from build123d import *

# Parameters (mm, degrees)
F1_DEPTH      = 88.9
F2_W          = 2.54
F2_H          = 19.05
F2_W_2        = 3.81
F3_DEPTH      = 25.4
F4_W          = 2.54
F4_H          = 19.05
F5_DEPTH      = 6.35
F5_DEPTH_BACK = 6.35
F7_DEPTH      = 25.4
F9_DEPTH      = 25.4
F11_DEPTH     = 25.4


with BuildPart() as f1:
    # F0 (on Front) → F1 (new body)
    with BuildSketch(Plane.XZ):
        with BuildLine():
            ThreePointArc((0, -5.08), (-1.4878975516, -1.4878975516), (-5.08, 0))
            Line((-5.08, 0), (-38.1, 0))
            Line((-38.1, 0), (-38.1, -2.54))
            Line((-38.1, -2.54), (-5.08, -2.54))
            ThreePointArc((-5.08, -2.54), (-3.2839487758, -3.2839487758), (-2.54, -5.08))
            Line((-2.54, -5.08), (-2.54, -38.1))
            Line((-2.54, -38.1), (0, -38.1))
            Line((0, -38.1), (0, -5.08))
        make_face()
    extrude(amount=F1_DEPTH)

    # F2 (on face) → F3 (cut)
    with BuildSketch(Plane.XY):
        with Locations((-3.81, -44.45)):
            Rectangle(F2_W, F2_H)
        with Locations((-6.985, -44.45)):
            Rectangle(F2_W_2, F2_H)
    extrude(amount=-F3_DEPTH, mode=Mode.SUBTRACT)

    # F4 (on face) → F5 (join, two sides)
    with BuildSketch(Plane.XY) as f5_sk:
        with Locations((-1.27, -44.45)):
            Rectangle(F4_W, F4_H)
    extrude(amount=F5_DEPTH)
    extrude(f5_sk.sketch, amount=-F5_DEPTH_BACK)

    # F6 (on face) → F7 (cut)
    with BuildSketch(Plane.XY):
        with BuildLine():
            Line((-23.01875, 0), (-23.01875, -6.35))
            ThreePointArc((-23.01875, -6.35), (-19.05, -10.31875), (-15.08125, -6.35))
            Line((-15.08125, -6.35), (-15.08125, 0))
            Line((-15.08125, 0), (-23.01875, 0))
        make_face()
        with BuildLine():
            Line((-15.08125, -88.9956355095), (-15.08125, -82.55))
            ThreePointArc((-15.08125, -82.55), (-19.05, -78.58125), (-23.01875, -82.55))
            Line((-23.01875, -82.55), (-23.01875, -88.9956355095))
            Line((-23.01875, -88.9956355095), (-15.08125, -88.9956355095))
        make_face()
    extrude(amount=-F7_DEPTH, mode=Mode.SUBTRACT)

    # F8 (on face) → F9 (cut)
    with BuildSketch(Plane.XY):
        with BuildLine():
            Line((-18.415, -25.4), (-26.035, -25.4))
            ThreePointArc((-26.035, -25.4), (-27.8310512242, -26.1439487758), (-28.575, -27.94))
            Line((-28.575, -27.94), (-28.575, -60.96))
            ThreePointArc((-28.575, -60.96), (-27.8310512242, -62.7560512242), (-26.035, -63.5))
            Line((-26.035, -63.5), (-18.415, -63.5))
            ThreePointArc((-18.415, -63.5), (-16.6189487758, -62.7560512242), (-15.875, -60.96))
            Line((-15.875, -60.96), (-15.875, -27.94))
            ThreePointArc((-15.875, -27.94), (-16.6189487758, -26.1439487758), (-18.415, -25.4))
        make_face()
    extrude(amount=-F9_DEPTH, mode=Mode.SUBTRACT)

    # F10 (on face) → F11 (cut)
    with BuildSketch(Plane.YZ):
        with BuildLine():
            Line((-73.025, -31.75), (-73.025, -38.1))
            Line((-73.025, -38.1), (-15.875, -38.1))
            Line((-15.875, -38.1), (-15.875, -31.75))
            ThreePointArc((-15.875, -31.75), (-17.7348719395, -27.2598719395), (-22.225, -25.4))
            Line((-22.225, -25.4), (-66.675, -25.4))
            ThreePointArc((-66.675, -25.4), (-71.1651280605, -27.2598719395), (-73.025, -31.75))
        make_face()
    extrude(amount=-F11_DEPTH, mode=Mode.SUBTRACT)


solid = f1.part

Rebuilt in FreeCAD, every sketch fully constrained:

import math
import FreeCAD as App
import Part
import Sketcher
from FreeCAD import Vector
Q = App.Units.Quantity


def add_polygon(sketch, points):
    """Adds a closed chain of lines whose ends are joined by coincident constraints."""
    first, n = sketch.GeometryCount, len(points)
    for a, b in zip(points, points[1:] + points[:1]):
        sketch.addGeometry(Part.LineSegment(App.Vector(*a, 0), App.Vector(*b, 0)), False)
    for i in range(n):
        sketch.addConstraint(Sketcher.Constraint("Coincident", first + i, 2, first + (i + 1) % n, 1))

doc = App.newDocument("Part")
params = doc.addObject("Spreadsheet::Sheet", "Params")
for row, (alias, value) in enumerate([
    ("sketch1_radius", "0.2 in"),
    ("sketch1_radius2", "0.1 in"),
    ("sketch1_width", "1.3 in"),
    ("pad1_length", "3.5 in"),
    ("sketch2_width", "0.25 in"),
    ("sketch2_height", "0.75 in"),
    ("pocket1_length", "1 in"),
    ("sketch3_width", "0.1 in"),
    ("sketch3_height", "0.75 in"),
    ("pad2_length", "0.25 in"),
    ("pad2_length2", "0.25 in"),
    ("sketch4_radius", "0.15625 in"),
    ("sketch4_height", "0.25 in"),
    ("pocket2_length", "1 in"),
    ("sketch5_radius", "0.1 in"),
    ("sketch5_width", "0.3 in"),
    ("sketch5_height", "1.3 in"),
    ("pocket3_length", "1 in"),
    ("sketch6_radius", "0.25 in"),
    ("sketch6_height", "0.25 in"),
    ("pocket4_length", "1 in"),
], start=1):
    params.set(f"A{row}", alias)
    params.set(f"B{row}", "=" + value)
    params.setAlias(f"B{row}", alias)

body = doc.addObject("PartDesign::Body", "Body")

# Sketch on XZ plane
sketch1 = doc.addObject("Sketcher::SketchObject", "Sketch")
body.addObject(sketch1)
sketch1.AttachmentSupport = (doc.XZ_Plane, [""])
sketch1.MapMode = "FlatFace"
sketch1.addGeometry(Part.ArcOfCircle(Part.Circle(Vector(-5.1, -5.1, 0), Vector(0, 0, 1), 5.1), math.radians(0), math.radians(90)), False)
sketch1.addGeometry(Part.LineSegment(Vector(-5.1, 0, 0), Vector(-38.1, 0, 0)), False)
sketch1.addGeometry(Part.LineSegment(Vector(-38.1, 0, 0), Vector(-38.1, -2.5, 0)), False)
sketch1.addGeometry(Part.LineSegment(Vector(-38.1, -2.5, 0), Vector(-5.1, -2.5, 0)), False)
sketch1.addGeometry(Part.ArcOfCircle(Part.Circle(Vector(-5.1, -5.1, 0), Vector(0, 0, 1), 2.5), math.radians(0), math.radians(90)), False)
sketch1.addGeometry(Part.LineSegment(Vector(-2.5, -5.1, 0), Vector(-2.5, -38.1, 0)), False)
sketch1.addGeometry(Part.LineSegment(Vector(-2.5, -38.1, 0), Vector(0, -38.1, 0)), False)
sketch1.addGeometry(Part.LineSegment(Vector(0, -38.1, 0), Vector(0, -5.1, 0)), False)
sketch1.addConstraint(Sketcher.Constraint("Tangent", 0, 2, 1, 1))
sketch1.addConstraint(Sketcher.Constraint("Coincident", 1, 2, 2, 1))
sketch1.addConstraint(Sketcher.Constraint("Coincident", 2, 2, 3, 1))
sketch1.addConstraint(Sketcher.Constraint("Tangent", 3, 2, 4, 2))
sketch1.addConstraint(Sketcher.Constraint("Tangent", 4, 1, 5, 1))
sketch1.addConstraint(Sketcher.Constraint("Coincident", 5, 2, 6, 1))
sketch1.addConstraint(Sketcher.Constraint("Coincident", 6, 2, 7, 1))
sketch1.addConstraint(Sketcher.Constraint("Tangent", 7, 2, 0, 1))
sketch1.addConstraint(Sketcher.Constraint("Horizontal", 1))
sketch1.addConstraint(Sketcher.Constraint("Vertical", 2))
sketch1.addConstraint(Sketcher.Constraint("Horizontal", 3))
sketch1.addConstraint(Sketcher.Constraint("Vertical", 5))
sketch1.addConstraint(Sketcher.Constraint("Horizontal", 6))
sketch1.addConstraint(Sketcher.Constraint("Vertical", 7))
sketch1.addConstraint(Sketcher.Constraint("Coincident", 4, 3, 0, 3))
sketch1.addConstraint(Sketcher.Constraint("PointOnObject", 0, 2, -1))
sketch1.addConstraint(Sketcher.Constraint("PointOnObject", 6, 2, -2))
sketch1.addConstraint(Sketcher.Constraint("Equal", 3, 5))
sketch1.addConstraint(Sketcher.Constraint("Radius", 0, Q("0.2 in")))
sketch1.addConstraint(Sketcher.Constraint("Radius", 4, Q("0.1 in")))
sketch1.addConstraint(Sketcher.Constraint("DistanceX", 1, 2, 1, 1, Q("1.3 in")))
sketch1.setExpression("Constraints[18]", "Params.sketch1_radius")
sketch1.setExpression("Constraints[19]", "Params.sketch1_radius2")
sketch1.setExpression("Constraints[20]", "Params.sketch1_width")
pad1 = doc.addObject("PartDesign::Pad", "Pad")
body.addObject(pad1)
pad1.Profile = sketch1
pad1.setExpression("Length", "Params.pad1_length")

# Sketch on XY plane
sketch2 = doc.addObject("Sketcher::SketchObject", "Sketch001")
body.addObject(sketch2)
sketch2.AttachmentSupport = (doc.XY_Plane, [""])
sketch2.MapMode = "FlatFace"
add_polygon(sketch2, [(-3, -54), (-3, -35), (-9, -35), (-9, -54)])  # lines 0-3
sketch2.addConstraint(Sketcher.Constraint("Vertical", 0))
sketch2.addConstraint(Sketcher.Constraint("Horizontal", 1))
sketch2.addConstraint(Sketcher.Constraint("Vertical", 2))
sketch2.addConstraint(Sketcher.Constraint("Horizontal", 3))
sketch2.addConstraint(Sketcher.Constraint("DistanceX", 1, 2, 1, 1, Q("0.25 in")))
sketch2.addConstraint(Sketcher.Constraint("DistanceY", 0, 1, 0, 2, Q("0.75 in")))
sketch2.addConstraint(Sketcher.Constraint("DistanceX", 0, 2, -1, 1, Q("0.1 in")))
sketch2.addConstraint(Sketcher.Constraint("DistanceY", 0, 2, -1, 1, Q("1.375 in")))
sketch2.setExpression("Constraints[8]", "Params.sketch2_width")
sketch2.setExpression("Constraints[9]", "Params.sketch2_height")
pocket1 = doc.addObject("PartDesign::Pocket", "Pocket")
body.addObject(pocket1)
pocket1.Profile = sketch2
pocket1.setExpression("Length", "Params.pocket1_length")

# Sketch on XY plane
sketch3 = doc.addObject("Sketcher::SketchObject", "Sketch002")
body.addObject(sketch3)
sketch3.AttachmentSupport = (doc.XY_Plane, [""])
sketch3.MapMode = "FlatFace"
add_polygon(sketch3, [(-2.5, -34.9), (-2.5, -54), (0, -54), (0, -34.9)])  # lines 0-3
sketch3.addConstraint(Sketcher.Constraint("Vertical", 0))
sketch3.addConstraint(Sketcher.Constraint("Horizontal", 1))
sketch3.addConstraint(Sketcher.Constraint("Vertical", 2))
sketch3.addConstraint(Sketcher.Constraint("Horizontal", 3))
sketch3.addConstraint(Sketcher.Constraint("PointOnObject", 1, 2, -2))
sketch3.addConstraint(Sketcher.Constraint("DistanceX", 1, 1, 1, 2, Q("0.1 in")))
sketch3.addConstraint(Sketcher.Constraint("DistanceY", 0, 2, 0, 1, Q("0.75 in")))
sketch3.addConstraint(Sketcher.Constraint("DistanceY", 0, 2, -1, 1, Q("2.125 in")))
sketch3.setExpression("Constraints[9]", "Params.sketch3_width")
sketch3.setExpression("Constraints[10]", "Params.sketch3_height")
pad2 = doc.addObject("PartDesign::Pad", "Pad001")
body.addObject(pad2)
pad2.Profile = sketch3
pad2.Type = "TwoLengths"
pad2.setExpression("Length", "Params.pad2_length")
pad2.setExpression("Length2", "Params.pad2_length2")

# Sketch on XY plane
sketch4 = doc.addObject("Sketcher::SketchObject", "Sketch003")
body.addObject(sketch4)
sketch4.AttachmentSupport = (doc.XY_Plane, [""])
sketch4.MapMode = "FlatFace"
sketch4.addGeometry(Part.LineSegment(Vector(-23, 0, 0), Vector(-23, -6.3, 0)), False)
sketch4.addGeometry(Part.ArcOfCircle(Part.Circle(Vector(-19.1, -6.3, 0), Vector(0, 0, 1), 4), math.radians(180), math.radians(360)), False)
sketch4.addGeometry(Part.LineSegment(Vector(-15.1, -6.3, 0), Vector(-15.1, 0, 0)), False)
sketch4.addGeometry(Part.LineSegment(Vector(-15.1, 0, 0), Vector(-23, 0, 0)), False)
sketch4.addGeometry(Part.LineSegment(Vector(-15.1, -89, 0), Vector(-15.1, -82.5, 0)), False)
sketch4.addGeometry(Part.ArcOfCircle(Part.Circle(Vector(-19.1, -82.5, 0), Vector(0, 0, 1), 4), math.radians(0), math.radians(180)), False)
sketch4.addGeometry(Part.LineSegment(Vector(-23, -82.5, 0), Vector(-23, -89, 0)), False)
sketch4.addGeometry(Part.LineSegment(Vector(-23, -89, 0), Vector(-15.1, -89, 0)), False)
sketch4.addConstraint(Sketcher.Constraint("Tangent", 0, 2, 1, 1))
sketch4.addConstraint(Sketcher.Constraint("Tangent", 1, 2, 2, 1))
sketch4.addConstraint(Sketcher.Constraint("Coincident", 2, 2, 3, 1))
sketch4.addConstraint(Sketcher.Constraint("Coincident", 3, 2, 0, 1))
sketch4.addConstraint(Sketcher.Constraint("Tangent", 4, 2, 5, 1))
sketch4.addConstraint(Sketcher.Constraint("Tangent", 5, 2, 6, 1))
sketch4.addConstraint(Sketcher.Constraint("Coincident", 6, 2, 7, 1))
sketch4.addConstraint(Sketcher.Constraint("Coincident", 7, 2, 4, 1))
sketch4.addConstraint(Sketcher.Constraint("Vertical", 0))
sketch4.addConstraint(Sketcher.Constraint("Vertical", 2))
sketch4.addConstraint(Sketcher.Constraint("Horizontal", 3))
sketch4.addConstraint(Sketcher.Constraint("Vertical", 4))
sketch4.addConstraint(Sketcher.Constraint("Vertical", 6))
sketch4.addConstraint(Sketcher.Constraint("Horizontal", 7))
sketch4.addConstraint(Sketcher.Constraint("Equal", 1, 5))
sketch4.addConstraint(Sketcher.Constraint("PointOnObject", 2, 2, -1))
sketch4.addConstraint(Sketcher.Constraint("Vertical", 1, 3, 5, 3))
sketch4.addConstraint(Sketcher.Constraint("Radius", 1, Q("0.15625 in")))
sketch4.addConstraint(Sketcher.Constraint("DistanceY", 5, 3, 1, 3, Q("3 in")))
sketch4.addConstraint(Sketcher.Constraint("DistanceY", 0, 2, 0, 1, Q("0.25 in")))
sketch4.addConstraint(Sketcher.Constraint("DistanceX", 1, 3, -1, 1, Q("0.75 in")))
sketch4.addConstraint(Sketcher.Constraint("DistanceY", 4, 1, 4, 2, 6.445636))
sketch4.setExpression("Constraints[17]", "Params.sketch4_radius")
sketch4.setExpression("Constraints[19]", "Params.sketch4_height")
pocket2 = doc.addObject("PartDesign::Pocket", "Pocket001")
body.addObject(pocket2)
pocket2.Profile = sketch4
pocket2.setExpression("Length", "Params.pocket2_length")

# Sketch on XY plane
sketch5 = doc.addObject("Sketcher::SketchObject", "Sketch004")
body.addObject(sketch5)
sketch5.AttachmentSupport = (doc.XY_Plane, [""])
sketch5.MapMode = "FlatFace"
sketch5.addGeometry(Part.LineSegment(Vector(-18.4, -25.4, 0), Vector(-26, -25.4, 0)), False)
sketch5.addGeometry(Part.ArcOfCircle(Part.Circle(Vector(-26, -27.9, 0), Vector(0, 0, 1), 2.5), math.radians(90), math.radians(180)), False)
sketch5.addGeometry(Part.LineSegment(Vector(-28.6, -27.9, 0), Vector(-28.6, -61, 0)), False)
sketch5.addGeometry(Part.ArcOfCircle(Part.Circle(Vector(-26, -61, 0), Vector(0, 0, 1), 2.5), math.radians(180), math.radians(270)), False)
sketch5.addGeometry(Part.LineSegment(Vector(-26, -63.5, 0), Vector(-18.4, -63.5, 0)), False)
sketch5.addGeometry(Part.ArcOfCircle(Part.Circle(Vector(-18.4, -61, 0), Vector(0, 0, 1), 2.5), math.radians(-90), math.radians(0)), False)
sketch5.addGeometry(Part.LineSegment(Vector(-15.9, -61, 0), Vector(-15.9, -27.9, 0)), False)
sketch5.addGeometry(Part.ArcOfCircle(Part.Circle(Vector(-18.4, -27.9, 0), Vector(0, 0, 1), 2.5), math.radians(0), math.radians(90)), False)
sketch5.addConstraint(Sketcher.Constraint("Tangent", 0, 2, 1, 1))
sketch5.addConstraint(Sketcher.Constraint("Tangent", 1, 2, 2, 1))
sketch5.addConstraint(Sketcher.Constraint("Tangent", 2, 2, 3, 1))
sketch5.addConstraint(Sketcher.Constraint("Tangent", 3, 2, 4, 1))
sketch5.addConstraint(Sketcher.Constraint("Tangent", 4, 2, 5, 1))
sketch5.addConstraint(Sketcher.Constraint("Tangent", 5, 2, 6, 1))
sketch5.addConstraint(Sketcher.Constraint("Tangent", 6, 2, 7, 1))
sketch5.addConstraint(Sketcher.Constraint("Tangent", 7, 2, 0, 1))
sketch5.addConstraint(Sketcher.Constraint("Horizontal", 0))
sketch5.addConstraint(Sketcher.Constraint("Vertical", 2))
sketch5.addConstraint(Sketcher.Constraint("Horizontal", 4))
sketch5.addConstraint(Sketcher.Constraint("Vertical", 6))
sketch5.addConstraint(Sketcher.Constraint("Equal", 1, 3))
sketch5.addConstraint(Sketcher.Constraint("Equal", 3, 5))
sketch5.addConstraint(Sketcher.Constraint("Equal", 5, 7))
sketch5.addConstraint(Sketcher.Constraint("Radius", 1, Q("0.1 in")))
sketch5.addConstraint(Sketcher.Constraint("DistanceX", 0, 2, 0, 1, Q("0.3 in")))
sketch5.addConstraint(Sketcher.Constraint("DistanceY", 2, 2, 2, 1, Q("1.3 in")))
sketch5.addConstraint(Sketcher.Constraint("DistanceY", 0, 2, -1, 1, Q("1 in")))
sketch5.addConstraint(Sketcher.Constraint("DistanceX", 1, 3, -1, 1, Q("1.025 in")))
sketch5.setExpression("Constraints[15]", "Params.sketch5_radius")
sketch5.setExpression("Constraints[16]", "Params.sketch5_width")
sketch5.setExpression("Constraints[17]", "Params.sketch5_height")
pocket3 = doc.addObject("PartDesign::Pocket", "Pocket002")
body.addObject(pocket3)
pocket3.Profile = sketch5
pocket3.setExpression("Length", "Params.pocket3_length")

# Sketch on YZ plane
sketch6 = doc.addObject("Sketcher::SketchObject", "Sketch005")
body.addObject(sketch6)
sketch6.AttachmentSupport = (doc.YZ_Plane, [""])
sketch6.MapMode = "FlatFace"
sketch6.addGeometry(Part.LineSegment(Vector(-73, -32, 0), Vector(-73, -38, 0)), False)
sketch6.addGeometry(Part.LineSegment(Vector(-73, -38, 0), Vector(-16, -38, 0)), False)
sketch6.addGeometry(Part.LineSegment(Vector(-16, -38, 0), Vector(-16, -32, 0)), False)
sketch6.addGeometry(Part.ArcOfCircle(Part.Circle(Vector(-22, -32, 0), Vector(0, 0, 1), 6), math.radians(0), math.radians(90)), False)
sketch6.addGeometry(Part.LineSegment(Vector(-22, -25, 0), Vector(-67, -25, 0)), False)
sketch6.addGeometry(Part.ArcOfCircle(Part.Circle(Vector(-67, -32, 0), Vector(0, 0, 1), 6), math.radians(90), math.radians(180)), False)
sketch6.addConstraint(Sketcher.Constraint("Coincident", 0, 2, 1, 1))
sketch6.addConstraint(Sketcher.Constraint("Coincident", 1, 2, 2, 1))
sketch6.addConstraint(Sketcher.Constraint("Tangent", 2, 2, 3, 1))
sketch6.addConstraint(Sketcher.Constraint("Tangent", 3, 2, 4, 1))
sketch6.addConstraint(Sketcher.Constraint("Tangent", 4, 2, 5, 1))
sketch6.addConstraint(Sketcher.Constraint("Tangent", 5, 2, 0, 1))
sketch6.addConstraint(Sketcher.Constraint("Vertical", 0))
sketch6.addConstraint(Sketcher.Constraint("Horizontal", 1))
sketch6.addConstraint(Sketcher.Constraint("Vertical", 2))
sketch6.addConstraint(Sketcher.Constraint("Horizontal", 4))
sketch6.addConstraint(Sketcher.Constraint("Equal", 3, 5))
sketch6.addConstraint(Sketcher.Constraint("Radius", 3, Q("0.25 in")))
sketch6.addConstraint(Sketcher.Constraint("DistanceY", 3, 2, -1, 1, Q("1 in")))
sketch6.addConstraint(Sketcher.Constraint("DistanceX", 0, 2, 3, 3, Q("2 in")))
sketch6.addConstraint(Sketcher.Constraint("DistanceY", 0, 2, 0, 1, Q("0.25 in")))
sketch6.addConstraint(Sketcher.Constraint("DistanceX", 3, 3, -1, 1, Q("0.875 in")))
sketch6.setExpression("Constraints[11]", "Params.sketch6_radius")
sketch6.setExpression("Constraints[14]", "Params.sketch6_height")
pocket4 = doc.addObject("PartDesign::Pocket", "Pocket003")
body.addObject(pocket4)
pocket4.Profile = sketch6
pocket4.setExpression("Length", "Params.pocket4_length")

doc.recompute()
